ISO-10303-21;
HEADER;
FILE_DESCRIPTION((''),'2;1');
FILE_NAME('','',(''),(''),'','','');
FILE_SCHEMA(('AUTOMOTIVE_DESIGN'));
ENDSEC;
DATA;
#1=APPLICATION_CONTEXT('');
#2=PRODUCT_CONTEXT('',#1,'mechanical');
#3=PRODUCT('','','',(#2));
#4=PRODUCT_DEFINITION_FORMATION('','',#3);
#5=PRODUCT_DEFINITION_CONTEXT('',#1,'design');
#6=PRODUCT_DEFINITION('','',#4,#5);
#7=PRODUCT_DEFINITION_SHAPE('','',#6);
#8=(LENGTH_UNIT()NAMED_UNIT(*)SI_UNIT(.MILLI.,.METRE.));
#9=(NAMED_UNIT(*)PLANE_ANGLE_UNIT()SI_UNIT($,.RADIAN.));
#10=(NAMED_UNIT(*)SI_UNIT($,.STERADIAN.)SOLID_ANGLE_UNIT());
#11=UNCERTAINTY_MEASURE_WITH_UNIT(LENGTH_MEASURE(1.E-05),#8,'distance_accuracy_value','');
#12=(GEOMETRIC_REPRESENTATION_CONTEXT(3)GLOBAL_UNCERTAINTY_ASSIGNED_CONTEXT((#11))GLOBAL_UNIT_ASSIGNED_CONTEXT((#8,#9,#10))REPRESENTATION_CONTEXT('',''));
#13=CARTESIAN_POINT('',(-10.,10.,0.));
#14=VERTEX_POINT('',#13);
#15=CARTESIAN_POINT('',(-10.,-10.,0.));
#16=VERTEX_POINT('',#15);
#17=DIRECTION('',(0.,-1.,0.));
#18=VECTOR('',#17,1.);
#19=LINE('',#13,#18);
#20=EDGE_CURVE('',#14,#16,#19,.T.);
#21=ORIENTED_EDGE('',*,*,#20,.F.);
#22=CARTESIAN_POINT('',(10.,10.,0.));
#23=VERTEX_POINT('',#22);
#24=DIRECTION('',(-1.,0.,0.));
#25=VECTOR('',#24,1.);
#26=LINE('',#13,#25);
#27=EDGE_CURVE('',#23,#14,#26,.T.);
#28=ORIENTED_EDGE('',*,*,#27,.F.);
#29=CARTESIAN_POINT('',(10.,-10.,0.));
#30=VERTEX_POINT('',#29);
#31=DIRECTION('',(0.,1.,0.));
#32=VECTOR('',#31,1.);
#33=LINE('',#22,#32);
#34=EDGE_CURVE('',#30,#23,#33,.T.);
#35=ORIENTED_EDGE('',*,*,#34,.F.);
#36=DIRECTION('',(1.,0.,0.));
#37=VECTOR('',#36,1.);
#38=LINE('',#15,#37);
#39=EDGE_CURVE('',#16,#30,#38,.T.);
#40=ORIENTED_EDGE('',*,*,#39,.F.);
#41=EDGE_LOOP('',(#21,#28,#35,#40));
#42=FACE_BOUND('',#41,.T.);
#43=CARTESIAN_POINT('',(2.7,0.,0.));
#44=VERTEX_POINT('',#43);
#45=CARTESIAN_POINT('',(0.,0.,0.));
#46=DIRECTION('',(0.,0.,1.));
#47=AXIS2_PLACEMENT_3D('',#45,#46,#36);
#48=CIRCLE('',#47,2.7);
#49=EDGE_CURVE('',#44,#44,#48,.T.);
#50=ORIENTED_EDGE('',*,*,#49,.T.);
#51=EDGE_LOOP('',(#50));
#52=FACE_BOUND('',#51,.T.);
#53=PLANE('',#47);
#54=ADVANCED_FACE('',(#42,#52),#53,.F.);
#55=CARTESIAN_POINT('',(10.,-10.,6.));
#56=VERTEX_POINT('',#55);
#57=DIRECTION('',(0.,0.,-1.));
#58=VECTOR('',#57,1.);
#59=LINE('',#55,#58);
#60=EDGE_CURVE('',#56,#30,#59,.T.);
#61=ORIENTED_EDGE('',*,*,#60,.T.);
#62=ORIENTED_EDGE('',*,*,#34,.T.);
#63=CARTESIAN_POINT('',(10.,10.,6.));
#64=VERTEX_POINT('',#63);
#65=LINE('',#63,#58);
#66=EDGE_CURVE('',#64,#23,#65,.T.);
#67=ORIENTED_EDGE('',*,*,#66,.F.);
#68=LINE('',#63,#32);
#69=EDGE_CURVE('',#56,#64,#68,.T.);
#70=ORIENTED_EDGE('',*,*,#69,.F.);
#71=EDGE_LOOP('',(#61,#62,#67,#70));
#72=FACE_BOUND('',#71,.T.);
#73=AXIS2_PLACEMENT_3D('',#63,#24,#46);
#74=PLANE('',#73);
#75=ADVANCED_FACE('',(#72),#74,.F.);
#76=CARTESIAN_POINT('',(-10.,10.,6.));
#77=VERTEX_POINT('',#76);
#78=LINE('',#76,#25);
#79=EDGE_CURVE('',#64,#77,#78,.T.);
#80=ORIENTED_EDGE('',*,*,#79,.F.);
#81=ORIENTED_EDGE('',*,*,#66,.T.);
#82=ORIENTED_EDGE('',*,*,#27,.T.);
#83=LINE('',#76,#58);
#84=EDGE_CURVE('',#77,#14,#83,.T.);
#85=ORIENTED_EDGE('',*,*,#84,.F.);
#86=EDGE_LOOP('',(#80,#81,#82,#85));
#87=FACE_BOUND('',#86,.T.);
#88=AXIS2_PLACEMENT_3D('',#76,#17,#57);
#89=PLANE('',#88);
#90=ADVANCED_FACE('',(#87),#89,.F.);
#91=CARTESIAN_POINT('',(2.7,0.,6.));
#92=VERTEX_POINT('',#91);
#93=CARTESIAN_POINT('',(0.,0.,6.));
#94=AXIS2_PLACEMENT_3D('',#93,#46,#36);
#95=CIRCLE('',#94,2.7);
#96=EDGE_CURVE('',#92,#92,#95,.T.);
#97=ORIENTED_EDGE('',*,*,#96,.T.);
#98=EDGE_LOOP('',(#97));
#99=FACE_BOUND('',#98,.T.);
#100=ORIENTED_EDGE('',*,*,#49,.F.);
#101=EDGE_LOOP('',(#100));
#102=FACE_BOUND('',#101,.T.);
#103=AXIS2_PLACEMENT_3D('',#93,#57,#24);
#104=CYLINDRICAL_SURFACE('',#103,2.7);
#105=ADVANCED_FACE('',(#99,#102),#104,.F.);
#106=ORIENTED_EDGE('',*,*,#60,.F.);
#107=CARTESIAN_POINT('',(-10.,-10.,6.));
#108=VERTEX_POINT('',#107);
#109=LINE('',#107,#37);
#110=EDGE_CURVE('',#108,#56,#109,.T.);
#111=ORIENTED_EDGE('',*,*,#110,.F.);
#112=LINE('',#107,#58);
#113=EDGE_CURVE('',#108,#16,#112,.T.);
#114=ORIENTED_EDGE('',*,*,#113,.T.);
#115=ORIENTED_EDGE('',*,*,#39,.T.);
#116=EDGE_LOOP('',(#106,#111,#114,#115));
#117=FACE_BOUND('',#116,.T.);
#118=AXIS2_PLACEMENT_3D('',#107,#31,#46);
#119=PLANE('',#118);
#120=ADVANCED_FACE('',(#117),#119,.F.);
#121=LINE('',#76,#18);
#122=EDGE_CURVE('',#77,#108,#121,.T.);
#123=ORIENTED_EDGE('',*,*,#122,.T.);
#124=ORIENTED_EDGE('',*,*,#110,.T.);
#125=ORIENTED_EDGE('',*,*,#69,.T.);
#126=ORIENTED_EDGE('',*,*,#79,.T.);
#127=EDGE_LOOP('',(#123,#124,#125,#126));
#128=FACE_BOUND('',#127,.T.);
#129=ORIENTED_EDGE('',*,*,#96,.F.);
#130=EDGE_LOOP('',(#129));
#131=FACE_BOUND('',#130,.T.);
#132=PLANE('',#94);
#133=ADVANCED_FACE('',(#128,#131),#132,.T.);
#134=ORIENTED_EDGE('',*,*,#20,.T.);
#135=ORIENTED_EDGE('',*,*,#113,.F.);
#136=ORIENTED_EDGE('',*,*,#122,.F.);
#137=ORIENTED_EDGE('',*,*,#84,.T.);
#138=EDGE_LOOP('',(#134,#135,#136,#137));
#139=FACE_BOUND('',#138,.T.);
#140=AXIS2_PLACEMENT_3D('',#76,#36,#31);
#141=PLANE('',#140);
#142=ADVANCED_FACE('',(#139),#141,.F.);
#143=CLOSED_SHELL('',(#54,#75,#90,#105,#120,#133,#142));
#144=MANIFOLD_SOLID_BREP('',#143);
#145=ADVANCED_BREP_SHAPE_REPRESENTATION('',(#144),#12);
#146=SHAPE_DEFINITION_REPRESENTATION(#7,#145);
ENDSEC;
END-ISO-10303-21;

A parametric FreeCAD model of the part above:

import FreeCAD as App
import Part
import Sketcher
from FreeCAD import Vector


def add_polygon(sketch, points):
    """Adds a closed chain of lines whose ends are joined by coincident constraints."""
    first, n = sketch.GeometryCount, len(points)
    for a, b in zip(points, points[1:] + points[:1]):
        sketch.addGeometry(Part.LineSegment(App.Vector(*a, 0), App.Vector(*b, 0)), False)
    for i in range(n):
        sketch.addConstraint(Sketcher.Constraint("Coincident", first + i, 2, first + (i + 1) % n, 1))

doc = App.newDocument("Part")
body = doc.addObject("PartDesign::Body", "Body")

sketch1 = doc.addObject("Sketcher::SketchObject", "Sketch")
body.addObject(sketch1)
sketch1.AttachmentSupport = (doc.XY_Plane, [""])
sketch1.MapMode = "FlatFace"
add_polygon(sketch1, [(-10, 10), (-10, -10), (10, -10), (10, 10)])
sketch1.addGeometry(Part.Circle(Vector(0, 0, 0), Vector(0, 0, 1), 2.7), False)
sketch1.addConstraint([
    Sketcher.Constraint("Vertical", 0),
    Sketcher.Constraint("Horizontal", 1),
    Sketcher.Constraint("Vertical", 2),
    Sketcher.Constraint("Horizontal", 3),
    Sketcher.Constraint("Coincident", 4, 3, -1, 1),
    Sketcher.Constraint("Symmetric", 0, 2, 2, 2, -1, 1),
    Sketcher.Constraint("Equal", 3, 0),
    Sketcher.Constraint("Diameter", 4, 5.4),
    Sketcher.Constraint("DistanceX", 1, 1, 1, 2, 20.0),
])
pad1 = doc.addObject("PartDesign::Pad", "Pad")
body.addObject(pad1)
pad1.Profile = sketch1
pad1.Length = 6

doc.recompute()
